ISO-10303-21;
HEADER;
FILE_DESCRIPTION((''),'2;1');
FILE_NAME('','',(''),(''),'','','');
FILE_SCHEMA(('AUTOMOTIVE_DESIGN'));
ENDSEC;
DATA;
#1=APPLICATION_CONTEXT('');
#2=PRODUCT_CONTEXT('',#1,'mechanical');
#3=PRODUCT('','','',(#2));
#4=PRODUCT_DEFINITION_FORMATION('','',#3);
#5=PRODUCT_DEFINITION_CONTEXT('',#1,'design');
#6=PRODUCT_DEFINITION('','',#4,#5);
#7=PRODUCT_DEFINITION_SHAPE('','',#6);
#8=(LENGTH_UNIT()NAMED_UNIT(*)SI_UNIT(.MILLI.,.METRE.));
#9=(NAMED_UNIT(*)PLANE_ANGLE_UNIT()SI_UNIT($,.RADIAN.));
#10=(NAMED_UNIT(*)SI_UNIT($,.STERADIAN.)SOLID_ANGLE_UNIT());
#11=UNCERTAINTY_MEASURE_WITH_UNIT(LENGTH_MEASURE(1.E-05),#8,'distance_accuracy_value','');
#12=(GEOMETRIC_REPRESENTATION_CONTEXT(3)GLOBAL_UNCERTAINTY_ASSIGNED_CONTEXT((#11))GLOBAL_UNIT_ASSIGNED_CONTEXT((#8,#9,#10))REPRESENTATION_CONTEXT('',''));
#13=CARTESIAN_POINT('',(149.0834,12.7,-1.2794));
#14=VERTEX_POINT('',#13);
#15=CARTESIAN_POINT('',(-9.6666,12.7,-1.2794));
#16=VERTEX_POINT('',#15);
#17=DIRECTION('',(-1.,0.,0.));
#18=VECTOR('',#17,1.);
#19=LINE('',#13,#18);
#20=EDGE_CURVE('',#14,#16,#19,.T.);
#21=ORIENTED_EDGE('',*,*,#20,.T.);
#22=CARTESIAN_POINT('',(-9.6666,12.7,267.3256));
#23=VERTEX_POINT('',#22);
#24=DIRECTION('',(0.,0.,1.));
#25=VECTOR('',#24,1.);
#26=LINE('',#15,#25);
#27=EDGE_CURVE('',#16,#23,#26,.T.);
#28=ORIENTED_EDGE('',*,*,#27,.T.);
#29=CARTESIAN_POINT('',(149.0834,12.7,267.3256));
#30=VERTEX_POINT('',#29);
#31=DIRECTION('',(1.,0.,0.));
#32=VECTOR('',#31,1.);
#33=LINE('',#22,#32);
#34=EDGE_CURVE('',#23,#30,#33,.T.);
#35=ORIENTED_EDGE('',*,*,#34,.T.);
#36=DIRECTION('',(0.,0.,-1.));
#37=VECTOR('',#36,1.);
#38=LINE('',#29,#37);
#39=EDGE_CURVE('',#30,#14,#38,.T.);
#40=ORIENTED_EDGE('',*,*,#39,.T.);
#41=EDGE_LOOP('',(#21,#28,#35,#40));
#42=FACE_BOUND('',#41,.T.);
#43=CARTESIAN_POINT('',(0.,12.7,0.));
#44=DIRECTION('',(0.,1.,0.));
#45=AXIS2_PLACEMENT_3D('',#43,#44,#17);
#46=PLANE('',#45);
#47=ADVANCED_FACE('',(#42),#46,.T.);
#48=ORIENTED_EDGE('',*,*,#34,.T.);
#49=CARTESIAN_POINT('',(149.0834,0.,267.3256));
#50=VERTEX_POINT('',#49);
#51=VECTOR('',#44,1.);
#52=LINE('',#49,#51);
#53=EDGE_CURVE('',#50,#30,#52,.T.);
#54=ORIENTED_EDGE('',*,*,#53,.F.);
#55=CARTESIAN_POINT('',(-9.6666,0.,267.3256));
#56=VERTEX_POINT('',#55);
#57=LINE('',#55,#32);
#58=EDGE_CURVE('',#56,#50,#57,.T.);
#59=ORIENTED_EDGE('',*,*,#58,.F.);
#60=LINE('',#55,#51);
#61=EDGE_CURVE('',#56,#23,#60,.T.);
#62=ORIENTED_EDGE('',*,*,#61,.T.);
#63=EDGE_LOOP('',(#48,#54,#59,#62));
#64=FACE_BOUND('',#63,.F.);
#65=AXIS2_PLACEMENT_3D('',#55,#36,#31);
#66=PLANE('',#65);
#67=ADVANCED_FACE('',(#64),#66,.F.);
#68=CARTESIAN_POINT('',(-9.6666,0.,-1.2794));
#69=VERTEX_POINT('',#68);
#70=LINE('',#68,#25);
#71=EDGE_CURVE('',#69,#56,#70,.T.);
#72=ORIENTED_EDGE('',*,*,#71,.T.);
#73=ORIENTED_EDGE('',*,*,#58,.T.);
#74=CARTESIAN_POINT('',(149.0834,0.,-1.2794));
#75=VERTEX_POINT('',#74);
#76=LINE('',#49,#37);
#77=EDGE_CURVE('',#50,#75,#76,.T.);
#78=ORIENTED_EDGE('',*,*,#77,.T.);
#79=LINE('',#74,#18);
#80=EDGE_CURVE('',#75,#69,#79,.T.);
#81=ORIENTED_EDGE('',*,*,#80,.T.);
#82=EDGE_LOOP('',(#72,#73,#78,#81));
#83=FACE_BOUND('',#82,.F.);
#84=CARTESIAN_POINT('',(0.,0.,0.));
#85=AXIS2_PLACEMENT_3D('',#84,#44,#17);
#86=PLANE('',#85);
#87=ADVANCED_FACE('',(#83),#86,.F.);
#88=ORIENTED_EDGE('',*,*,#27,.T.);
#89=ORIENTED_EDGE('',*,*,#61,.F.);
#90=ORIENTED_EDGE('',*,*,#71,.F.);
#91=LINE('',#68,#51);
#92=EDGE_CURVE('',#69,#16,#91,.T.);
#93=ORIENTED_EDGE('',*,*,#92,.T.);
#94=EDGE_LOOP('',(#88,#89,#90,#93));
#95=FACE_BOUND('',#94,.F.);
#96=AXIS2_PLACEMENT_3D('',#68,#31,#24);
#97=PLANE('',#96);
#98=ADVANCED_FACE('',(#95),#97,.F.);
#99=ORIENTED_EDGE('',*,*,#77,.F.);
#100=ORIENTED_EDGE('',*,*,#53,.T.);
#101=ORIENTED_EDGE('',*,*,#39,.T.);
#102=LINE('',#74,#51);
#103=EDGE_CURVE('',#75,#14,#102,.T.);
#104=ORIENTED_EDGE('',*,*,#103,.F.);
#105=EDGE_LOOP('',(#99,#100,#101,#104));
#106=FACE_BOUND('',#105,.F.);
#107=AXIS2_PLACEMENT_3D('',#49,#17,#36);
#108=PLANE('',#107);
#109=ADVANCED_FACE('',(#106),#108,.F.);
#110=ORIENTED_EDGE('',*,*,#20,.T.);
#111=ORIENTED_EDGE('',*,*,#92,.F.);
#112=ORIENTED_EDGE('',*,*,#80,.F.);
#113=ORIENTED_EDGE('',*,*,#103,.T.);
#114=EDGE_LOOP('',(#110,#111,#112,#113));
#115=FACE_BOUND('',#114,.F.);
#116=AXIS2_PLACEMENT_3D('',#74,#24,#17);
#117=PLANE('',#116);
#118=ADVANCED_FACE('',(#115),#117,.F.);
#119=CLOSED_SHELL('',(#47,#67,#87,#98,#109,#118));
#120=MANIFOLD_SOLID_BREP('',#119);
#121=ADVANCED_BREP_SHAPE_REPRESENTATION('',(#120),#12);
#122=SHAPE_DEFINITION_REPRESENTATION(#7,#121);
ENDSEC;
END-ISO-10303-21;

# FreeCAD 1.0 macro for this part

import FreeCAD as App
import Part
import Sketcher
Q = App.Units.Quantity

doc = App.newDocument("Part")
params = doc.addObject("Spreadsheet::Sheet", "Params")
for row, (alias, value) in enumerate([
    ("sketch1_width", "6.25 in"),
    ("sketch1_height", "10.575 in"),
    ("pad1_length", "0.5 in"),
], start=1):
    params.set(f"A{row}", alias)
    params.set(f"B{row}", "=" + value)
    params.setAlias(f"B{row}", alias)

body = doc.addObject("PartDesign::Body", "Body")

# Sketch on XZ plane
sketch1 = body.newObject("Sketcher::SketchObject", "Sketch")
sketch1.AttachmentSupport = (doc.getObject("XZ_Plane"), [""])
sketch1.MapMode = "FlatFace"
sketch1.addGeometry([
    Part.LineSegment(App.Vector(-10, -1, 0), App.Vector(-10, 267, 0)),
    Part.LineSegment(App.Vector(-10, 267, 0), App.Vector(149, 267, 0)),
    Part.LineSegment(App.Vector(149, 267, 0), App.Vector(149, -1, 0)),
    Part.LineSegment(App.Vector(149, -1, 0), App.Vector(-10, -1, 0)),
], False)
sketch1.addConstraint([
    Sketcher.Constraint("Coincident", 0, 2, 1, 1),
    Sketcher.Constraint("Coincident", 1, 2, 2, 1),
    Sketcher.Constraint("Coincident", 2, 2, 3, 1),
    Sketcher.Constraint("Coincident", 3, 2, 0, 1),
    Sketcher.Constraint("Vertical", 0),
    Sketcher.Constraint("Horizontal", 1),
    Sketcher.Constraint("Vertical", 2),
    Sketcher.Constraint("Horizontal", 3),
    Sketcher.Constraint("DistanceX", 1, 1, 1, 2, Q("6.25 in")),
    Sketcher.Constraint("DistanceY", 0, 1, 0, 2, Q("10.575 in")),
    Sketcher.Constraint("DistanceX", 0, 2, -1, 1, 9.6666),
    Sketcher.Constraint("DistanceY", -1, 1, 0, 2, 267.3256),
])
sketch1.setExpression("Constraints[8]", "Params.sketch1_width")
sketch1.setExpression("Constraints[9]", "Params.sketch1_height")
pad1 = body.newObject("PartDesign::Pad", "Pad")
pad1.Profile = sketch1
pad1.setExpression("Length", "Params.pad1_length")
pad1.Reversed = True

doc.recompute()
